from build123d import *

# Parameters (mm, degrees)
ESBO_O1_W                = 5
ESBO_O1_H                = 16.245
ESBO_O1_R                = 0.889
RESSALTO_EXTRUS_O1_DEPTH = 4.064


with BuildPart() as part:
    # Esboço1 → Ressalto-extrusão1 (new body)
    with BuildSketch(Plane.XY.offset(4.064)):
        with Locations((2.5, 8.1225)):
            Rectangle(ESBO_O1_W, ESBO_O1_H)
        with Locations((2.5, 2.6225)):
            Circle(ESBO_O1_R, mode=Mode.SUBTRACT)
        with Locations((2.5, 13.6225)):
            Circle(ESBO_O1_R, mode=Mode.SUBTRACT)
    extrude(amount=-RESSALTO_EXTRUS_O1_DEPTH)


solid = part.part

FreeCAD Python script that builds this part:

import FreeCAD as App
import Part
import Sketcher
Q = App.Units.Quantity


def add_polygon(sketch, points):
    """Adds a closed chain of lines whose ends are joined by coincident constraints."""
    first, n = sketch.GeometryCount, len(points)
    for a, b in zip(points, points[1:] + points[:1]):
        sketch.addGeometry(Part.LineSegment(App.Vector(*a, 0), App.Vector(*b, 0)), False)
    for i in range(n):
        sketch.addConstraint(Sketcher.Constraint("Coincident", first + i, 2, first + (i + 1) % n, 1))

doc = App.newDocument("Part")
body = doc.addObject("PartDesign::Body", "Body")

# Sketch on XY plane
sketch1 = body.newObject("Sketcher::SketchObject", "Sketch")
sketch1.AttachmentSupport = (doc.getObject("XY_Plane"), [""])
sketch1.MapMode = "FlatFace"
sketch1.AttachmentOffset = App.Placement(App.Vector(0, 0, 0.16 * 25.4), App.Rotation())
add_polygon(sketch1, [(0, 16.2), (0, 0), (5, 0), (5, 16.2)])  # lines 0-3
sketch1.addGeometry(Part.Circle(App.Vector(2.5, 2.6, 0), App.Vector(0, 0, 1), 0.9), False)  # 4
sketch1.addGeometry(Part.Circle(App.Vector(2.5, 13.6, 0), App.Vector(0, 0, 1), 0.9), False)  # 5
sketch1.addConstraint([
    Sketcher.Constraint("Vertical", 0),
    Sketcher.Constraint("Horizontal", 1),
    Sketcher.Constraint("Vertical", 2),
    Sketcher.Constraint("Horizontal", 3),
    Sketcher.Constraint("Coincident", 0, 2, -1, 1),
    Sketcher.Constraint("Equal", 4, 5),
    Sketcher.Constraint("Vertical", 4, 3, 5, 3),
    Sketcher.Constraint("Diameter", 4, Q("0.07 in")),
    Sketcher.Constraint("DistanceX", 1, 1, 1, 2, 5.0),
    Sketcher.Constraint("DistanceY", 0, 2, 0, 1, 16.245),
    Sketcher.Constraint("DistanceX", -1, 1, 4, 3, 2.5),
    Sketcher.Constraint("DistanceY", -1, 1, 4, 3, 2.6225),
    Sketcher.Constraint("DistanceY", -1, 1, 5, 3, 13.6225),
])
pad1 = body.newObject("PartDesign::Pad", "Pad")
pad1.Profile = sketch1
pad1.Length = Q("0.16 in")
pad1.Reversed = True

doc.recompute()
